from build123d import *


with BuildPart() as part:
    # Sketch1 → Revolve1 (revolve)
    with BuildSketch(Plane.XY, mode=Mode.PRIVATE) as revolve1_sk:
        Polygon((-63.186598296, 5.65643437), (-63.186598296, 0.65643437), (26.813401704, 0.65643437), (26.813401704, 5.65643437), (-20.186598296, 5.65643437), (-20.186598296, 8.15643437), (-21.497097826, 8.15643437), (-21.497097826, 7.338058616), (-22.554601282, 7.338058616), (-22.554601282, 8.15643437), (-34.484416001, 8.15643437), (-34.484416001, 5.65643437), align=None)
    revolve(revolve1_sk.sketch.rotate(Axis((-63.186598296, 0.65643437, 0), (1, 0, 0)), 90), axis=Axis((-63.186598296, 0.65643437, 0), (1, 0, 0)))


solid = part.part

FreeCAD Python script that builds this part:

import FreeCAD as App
import Part
import Sketcher
from FreeCAD import Vector


def add_polygon(sketch, points):
    """Adds a closed chain of lines whose ends are joined by coincident constraints."""
    first, n = sketch.GeometryCount, len(points)
    for a, b in zip(points, points[1:] + points[:1]):
        sketch.addGeometry(Part.LineSegment(App.Vector(*a, 0), App.Vector(*b, 0)), False)
    for i in range(n):
        sketch.addConstraint(Sketcher.Constraint("Coincident", first + i, 2, first + (i + 1) % n, 1))

doc = App.newDocument("Part")
body = doc.addObject("PartDesign::Body", "Body")

# Sketch on XY plane
sketch1 = body.newObject("Sketcher::SketchObject", "Sketch")
sketch1.AttachmentSupport = (doc.getObject("XY_Plane"), [""])
sketch1.MapMode = "FlatFace"
add_polygon(sketch1, [(-63.2, 5.7), (-63.2, 0.7), (26.8, 0.7), (26.8, 5.7), (-20.2, 5.7), (-20.2, 8.2), (-21.5, 8.2), (-21.5, 7.3), (-22.6, 7.3), (-22.6, 8.2), (-34.5, 8.2), (-34.5, 5.7)])  # lines 0-11
sketch1.addGeometry(Part.LineSegment(Vector(-63.2, 0.7, 0), Vector(26.8, 0.7, 0)), True)  # axis
sketch1.addConstraint([
    Sketcher.Constraint("Vertical", 0),
    Sketcher.Constraint("Horizontal", 1),
    Sketcher.Constraint("Vertical", 2),
    Sketcher.Constraint("Horizontal", 3),
    Sketcher.Constraint("Vertical", 4),
    Sketcher.Constraint("Horizontal", 5),
    Sketcher.Constraint("Vertical", 6),
    Sketcher.Constraint("Horizontal", 7),
    Sketcher.Constraint("Vertical", 8),
    Sketcher.Constraint("Horizontal", 9),
    Sketcher.Constraint("Vertical", 10),
    Sketcher.Constraint("Horizontal", 11),
    Sketcher.Constraint("Horizontal", 12),
    Sketcher.Constraint("Coincident", 12, 1, 0, 2),
    Sketcher.Constraint("Horizontal", 5, 2, 8, 2),
    Sketcher.Constraint("Horizontal", 3, 2, 10, 2),
    Sketcher.Constraint("Vertical", 2, 2, 12, 2),
    Sketcher.Constraint("DistanceX", 1, 1, 1, 2, 90.0),
    Sketcher.Constraint("DistanceX", 3, 2, 3, 1, 47.0),
    Sketcher.Constraint("DistanceY", 0, 2, 0, 1, 5.0),
    Sketcher.Constraint("DistanceY", 4, 1, 4, 2, 2.5),
    Sketcher.Constraint("DistanceX", 5, 2, 5, 1, 1.3105),
    Sketcher.Constraint("DistanceX", 0, 2, -1, 1, 63.186598),
    Sketcher.Constraint("DistanceX", 7, 2, -1, 1, 22.554601),
    Sketcher.Constraint("DistanceX", 9, 2, 9, 1, 11.929815),
    Sketcher.Constraint("DistanceY", 6, 2, 6, 1, 0.818376),
    Sketcher.Constraint("DistanceY", -1, 1, 6, 2, 7.338059),
])
revolution = body.newObject("PartDesign::Revolution", "Revolution")
revolution.Profile = sketch1
revolution.ReferenceAxis = (sketch1, ["Axis0"])
revolution.Angle = 360

doc.recompute()
